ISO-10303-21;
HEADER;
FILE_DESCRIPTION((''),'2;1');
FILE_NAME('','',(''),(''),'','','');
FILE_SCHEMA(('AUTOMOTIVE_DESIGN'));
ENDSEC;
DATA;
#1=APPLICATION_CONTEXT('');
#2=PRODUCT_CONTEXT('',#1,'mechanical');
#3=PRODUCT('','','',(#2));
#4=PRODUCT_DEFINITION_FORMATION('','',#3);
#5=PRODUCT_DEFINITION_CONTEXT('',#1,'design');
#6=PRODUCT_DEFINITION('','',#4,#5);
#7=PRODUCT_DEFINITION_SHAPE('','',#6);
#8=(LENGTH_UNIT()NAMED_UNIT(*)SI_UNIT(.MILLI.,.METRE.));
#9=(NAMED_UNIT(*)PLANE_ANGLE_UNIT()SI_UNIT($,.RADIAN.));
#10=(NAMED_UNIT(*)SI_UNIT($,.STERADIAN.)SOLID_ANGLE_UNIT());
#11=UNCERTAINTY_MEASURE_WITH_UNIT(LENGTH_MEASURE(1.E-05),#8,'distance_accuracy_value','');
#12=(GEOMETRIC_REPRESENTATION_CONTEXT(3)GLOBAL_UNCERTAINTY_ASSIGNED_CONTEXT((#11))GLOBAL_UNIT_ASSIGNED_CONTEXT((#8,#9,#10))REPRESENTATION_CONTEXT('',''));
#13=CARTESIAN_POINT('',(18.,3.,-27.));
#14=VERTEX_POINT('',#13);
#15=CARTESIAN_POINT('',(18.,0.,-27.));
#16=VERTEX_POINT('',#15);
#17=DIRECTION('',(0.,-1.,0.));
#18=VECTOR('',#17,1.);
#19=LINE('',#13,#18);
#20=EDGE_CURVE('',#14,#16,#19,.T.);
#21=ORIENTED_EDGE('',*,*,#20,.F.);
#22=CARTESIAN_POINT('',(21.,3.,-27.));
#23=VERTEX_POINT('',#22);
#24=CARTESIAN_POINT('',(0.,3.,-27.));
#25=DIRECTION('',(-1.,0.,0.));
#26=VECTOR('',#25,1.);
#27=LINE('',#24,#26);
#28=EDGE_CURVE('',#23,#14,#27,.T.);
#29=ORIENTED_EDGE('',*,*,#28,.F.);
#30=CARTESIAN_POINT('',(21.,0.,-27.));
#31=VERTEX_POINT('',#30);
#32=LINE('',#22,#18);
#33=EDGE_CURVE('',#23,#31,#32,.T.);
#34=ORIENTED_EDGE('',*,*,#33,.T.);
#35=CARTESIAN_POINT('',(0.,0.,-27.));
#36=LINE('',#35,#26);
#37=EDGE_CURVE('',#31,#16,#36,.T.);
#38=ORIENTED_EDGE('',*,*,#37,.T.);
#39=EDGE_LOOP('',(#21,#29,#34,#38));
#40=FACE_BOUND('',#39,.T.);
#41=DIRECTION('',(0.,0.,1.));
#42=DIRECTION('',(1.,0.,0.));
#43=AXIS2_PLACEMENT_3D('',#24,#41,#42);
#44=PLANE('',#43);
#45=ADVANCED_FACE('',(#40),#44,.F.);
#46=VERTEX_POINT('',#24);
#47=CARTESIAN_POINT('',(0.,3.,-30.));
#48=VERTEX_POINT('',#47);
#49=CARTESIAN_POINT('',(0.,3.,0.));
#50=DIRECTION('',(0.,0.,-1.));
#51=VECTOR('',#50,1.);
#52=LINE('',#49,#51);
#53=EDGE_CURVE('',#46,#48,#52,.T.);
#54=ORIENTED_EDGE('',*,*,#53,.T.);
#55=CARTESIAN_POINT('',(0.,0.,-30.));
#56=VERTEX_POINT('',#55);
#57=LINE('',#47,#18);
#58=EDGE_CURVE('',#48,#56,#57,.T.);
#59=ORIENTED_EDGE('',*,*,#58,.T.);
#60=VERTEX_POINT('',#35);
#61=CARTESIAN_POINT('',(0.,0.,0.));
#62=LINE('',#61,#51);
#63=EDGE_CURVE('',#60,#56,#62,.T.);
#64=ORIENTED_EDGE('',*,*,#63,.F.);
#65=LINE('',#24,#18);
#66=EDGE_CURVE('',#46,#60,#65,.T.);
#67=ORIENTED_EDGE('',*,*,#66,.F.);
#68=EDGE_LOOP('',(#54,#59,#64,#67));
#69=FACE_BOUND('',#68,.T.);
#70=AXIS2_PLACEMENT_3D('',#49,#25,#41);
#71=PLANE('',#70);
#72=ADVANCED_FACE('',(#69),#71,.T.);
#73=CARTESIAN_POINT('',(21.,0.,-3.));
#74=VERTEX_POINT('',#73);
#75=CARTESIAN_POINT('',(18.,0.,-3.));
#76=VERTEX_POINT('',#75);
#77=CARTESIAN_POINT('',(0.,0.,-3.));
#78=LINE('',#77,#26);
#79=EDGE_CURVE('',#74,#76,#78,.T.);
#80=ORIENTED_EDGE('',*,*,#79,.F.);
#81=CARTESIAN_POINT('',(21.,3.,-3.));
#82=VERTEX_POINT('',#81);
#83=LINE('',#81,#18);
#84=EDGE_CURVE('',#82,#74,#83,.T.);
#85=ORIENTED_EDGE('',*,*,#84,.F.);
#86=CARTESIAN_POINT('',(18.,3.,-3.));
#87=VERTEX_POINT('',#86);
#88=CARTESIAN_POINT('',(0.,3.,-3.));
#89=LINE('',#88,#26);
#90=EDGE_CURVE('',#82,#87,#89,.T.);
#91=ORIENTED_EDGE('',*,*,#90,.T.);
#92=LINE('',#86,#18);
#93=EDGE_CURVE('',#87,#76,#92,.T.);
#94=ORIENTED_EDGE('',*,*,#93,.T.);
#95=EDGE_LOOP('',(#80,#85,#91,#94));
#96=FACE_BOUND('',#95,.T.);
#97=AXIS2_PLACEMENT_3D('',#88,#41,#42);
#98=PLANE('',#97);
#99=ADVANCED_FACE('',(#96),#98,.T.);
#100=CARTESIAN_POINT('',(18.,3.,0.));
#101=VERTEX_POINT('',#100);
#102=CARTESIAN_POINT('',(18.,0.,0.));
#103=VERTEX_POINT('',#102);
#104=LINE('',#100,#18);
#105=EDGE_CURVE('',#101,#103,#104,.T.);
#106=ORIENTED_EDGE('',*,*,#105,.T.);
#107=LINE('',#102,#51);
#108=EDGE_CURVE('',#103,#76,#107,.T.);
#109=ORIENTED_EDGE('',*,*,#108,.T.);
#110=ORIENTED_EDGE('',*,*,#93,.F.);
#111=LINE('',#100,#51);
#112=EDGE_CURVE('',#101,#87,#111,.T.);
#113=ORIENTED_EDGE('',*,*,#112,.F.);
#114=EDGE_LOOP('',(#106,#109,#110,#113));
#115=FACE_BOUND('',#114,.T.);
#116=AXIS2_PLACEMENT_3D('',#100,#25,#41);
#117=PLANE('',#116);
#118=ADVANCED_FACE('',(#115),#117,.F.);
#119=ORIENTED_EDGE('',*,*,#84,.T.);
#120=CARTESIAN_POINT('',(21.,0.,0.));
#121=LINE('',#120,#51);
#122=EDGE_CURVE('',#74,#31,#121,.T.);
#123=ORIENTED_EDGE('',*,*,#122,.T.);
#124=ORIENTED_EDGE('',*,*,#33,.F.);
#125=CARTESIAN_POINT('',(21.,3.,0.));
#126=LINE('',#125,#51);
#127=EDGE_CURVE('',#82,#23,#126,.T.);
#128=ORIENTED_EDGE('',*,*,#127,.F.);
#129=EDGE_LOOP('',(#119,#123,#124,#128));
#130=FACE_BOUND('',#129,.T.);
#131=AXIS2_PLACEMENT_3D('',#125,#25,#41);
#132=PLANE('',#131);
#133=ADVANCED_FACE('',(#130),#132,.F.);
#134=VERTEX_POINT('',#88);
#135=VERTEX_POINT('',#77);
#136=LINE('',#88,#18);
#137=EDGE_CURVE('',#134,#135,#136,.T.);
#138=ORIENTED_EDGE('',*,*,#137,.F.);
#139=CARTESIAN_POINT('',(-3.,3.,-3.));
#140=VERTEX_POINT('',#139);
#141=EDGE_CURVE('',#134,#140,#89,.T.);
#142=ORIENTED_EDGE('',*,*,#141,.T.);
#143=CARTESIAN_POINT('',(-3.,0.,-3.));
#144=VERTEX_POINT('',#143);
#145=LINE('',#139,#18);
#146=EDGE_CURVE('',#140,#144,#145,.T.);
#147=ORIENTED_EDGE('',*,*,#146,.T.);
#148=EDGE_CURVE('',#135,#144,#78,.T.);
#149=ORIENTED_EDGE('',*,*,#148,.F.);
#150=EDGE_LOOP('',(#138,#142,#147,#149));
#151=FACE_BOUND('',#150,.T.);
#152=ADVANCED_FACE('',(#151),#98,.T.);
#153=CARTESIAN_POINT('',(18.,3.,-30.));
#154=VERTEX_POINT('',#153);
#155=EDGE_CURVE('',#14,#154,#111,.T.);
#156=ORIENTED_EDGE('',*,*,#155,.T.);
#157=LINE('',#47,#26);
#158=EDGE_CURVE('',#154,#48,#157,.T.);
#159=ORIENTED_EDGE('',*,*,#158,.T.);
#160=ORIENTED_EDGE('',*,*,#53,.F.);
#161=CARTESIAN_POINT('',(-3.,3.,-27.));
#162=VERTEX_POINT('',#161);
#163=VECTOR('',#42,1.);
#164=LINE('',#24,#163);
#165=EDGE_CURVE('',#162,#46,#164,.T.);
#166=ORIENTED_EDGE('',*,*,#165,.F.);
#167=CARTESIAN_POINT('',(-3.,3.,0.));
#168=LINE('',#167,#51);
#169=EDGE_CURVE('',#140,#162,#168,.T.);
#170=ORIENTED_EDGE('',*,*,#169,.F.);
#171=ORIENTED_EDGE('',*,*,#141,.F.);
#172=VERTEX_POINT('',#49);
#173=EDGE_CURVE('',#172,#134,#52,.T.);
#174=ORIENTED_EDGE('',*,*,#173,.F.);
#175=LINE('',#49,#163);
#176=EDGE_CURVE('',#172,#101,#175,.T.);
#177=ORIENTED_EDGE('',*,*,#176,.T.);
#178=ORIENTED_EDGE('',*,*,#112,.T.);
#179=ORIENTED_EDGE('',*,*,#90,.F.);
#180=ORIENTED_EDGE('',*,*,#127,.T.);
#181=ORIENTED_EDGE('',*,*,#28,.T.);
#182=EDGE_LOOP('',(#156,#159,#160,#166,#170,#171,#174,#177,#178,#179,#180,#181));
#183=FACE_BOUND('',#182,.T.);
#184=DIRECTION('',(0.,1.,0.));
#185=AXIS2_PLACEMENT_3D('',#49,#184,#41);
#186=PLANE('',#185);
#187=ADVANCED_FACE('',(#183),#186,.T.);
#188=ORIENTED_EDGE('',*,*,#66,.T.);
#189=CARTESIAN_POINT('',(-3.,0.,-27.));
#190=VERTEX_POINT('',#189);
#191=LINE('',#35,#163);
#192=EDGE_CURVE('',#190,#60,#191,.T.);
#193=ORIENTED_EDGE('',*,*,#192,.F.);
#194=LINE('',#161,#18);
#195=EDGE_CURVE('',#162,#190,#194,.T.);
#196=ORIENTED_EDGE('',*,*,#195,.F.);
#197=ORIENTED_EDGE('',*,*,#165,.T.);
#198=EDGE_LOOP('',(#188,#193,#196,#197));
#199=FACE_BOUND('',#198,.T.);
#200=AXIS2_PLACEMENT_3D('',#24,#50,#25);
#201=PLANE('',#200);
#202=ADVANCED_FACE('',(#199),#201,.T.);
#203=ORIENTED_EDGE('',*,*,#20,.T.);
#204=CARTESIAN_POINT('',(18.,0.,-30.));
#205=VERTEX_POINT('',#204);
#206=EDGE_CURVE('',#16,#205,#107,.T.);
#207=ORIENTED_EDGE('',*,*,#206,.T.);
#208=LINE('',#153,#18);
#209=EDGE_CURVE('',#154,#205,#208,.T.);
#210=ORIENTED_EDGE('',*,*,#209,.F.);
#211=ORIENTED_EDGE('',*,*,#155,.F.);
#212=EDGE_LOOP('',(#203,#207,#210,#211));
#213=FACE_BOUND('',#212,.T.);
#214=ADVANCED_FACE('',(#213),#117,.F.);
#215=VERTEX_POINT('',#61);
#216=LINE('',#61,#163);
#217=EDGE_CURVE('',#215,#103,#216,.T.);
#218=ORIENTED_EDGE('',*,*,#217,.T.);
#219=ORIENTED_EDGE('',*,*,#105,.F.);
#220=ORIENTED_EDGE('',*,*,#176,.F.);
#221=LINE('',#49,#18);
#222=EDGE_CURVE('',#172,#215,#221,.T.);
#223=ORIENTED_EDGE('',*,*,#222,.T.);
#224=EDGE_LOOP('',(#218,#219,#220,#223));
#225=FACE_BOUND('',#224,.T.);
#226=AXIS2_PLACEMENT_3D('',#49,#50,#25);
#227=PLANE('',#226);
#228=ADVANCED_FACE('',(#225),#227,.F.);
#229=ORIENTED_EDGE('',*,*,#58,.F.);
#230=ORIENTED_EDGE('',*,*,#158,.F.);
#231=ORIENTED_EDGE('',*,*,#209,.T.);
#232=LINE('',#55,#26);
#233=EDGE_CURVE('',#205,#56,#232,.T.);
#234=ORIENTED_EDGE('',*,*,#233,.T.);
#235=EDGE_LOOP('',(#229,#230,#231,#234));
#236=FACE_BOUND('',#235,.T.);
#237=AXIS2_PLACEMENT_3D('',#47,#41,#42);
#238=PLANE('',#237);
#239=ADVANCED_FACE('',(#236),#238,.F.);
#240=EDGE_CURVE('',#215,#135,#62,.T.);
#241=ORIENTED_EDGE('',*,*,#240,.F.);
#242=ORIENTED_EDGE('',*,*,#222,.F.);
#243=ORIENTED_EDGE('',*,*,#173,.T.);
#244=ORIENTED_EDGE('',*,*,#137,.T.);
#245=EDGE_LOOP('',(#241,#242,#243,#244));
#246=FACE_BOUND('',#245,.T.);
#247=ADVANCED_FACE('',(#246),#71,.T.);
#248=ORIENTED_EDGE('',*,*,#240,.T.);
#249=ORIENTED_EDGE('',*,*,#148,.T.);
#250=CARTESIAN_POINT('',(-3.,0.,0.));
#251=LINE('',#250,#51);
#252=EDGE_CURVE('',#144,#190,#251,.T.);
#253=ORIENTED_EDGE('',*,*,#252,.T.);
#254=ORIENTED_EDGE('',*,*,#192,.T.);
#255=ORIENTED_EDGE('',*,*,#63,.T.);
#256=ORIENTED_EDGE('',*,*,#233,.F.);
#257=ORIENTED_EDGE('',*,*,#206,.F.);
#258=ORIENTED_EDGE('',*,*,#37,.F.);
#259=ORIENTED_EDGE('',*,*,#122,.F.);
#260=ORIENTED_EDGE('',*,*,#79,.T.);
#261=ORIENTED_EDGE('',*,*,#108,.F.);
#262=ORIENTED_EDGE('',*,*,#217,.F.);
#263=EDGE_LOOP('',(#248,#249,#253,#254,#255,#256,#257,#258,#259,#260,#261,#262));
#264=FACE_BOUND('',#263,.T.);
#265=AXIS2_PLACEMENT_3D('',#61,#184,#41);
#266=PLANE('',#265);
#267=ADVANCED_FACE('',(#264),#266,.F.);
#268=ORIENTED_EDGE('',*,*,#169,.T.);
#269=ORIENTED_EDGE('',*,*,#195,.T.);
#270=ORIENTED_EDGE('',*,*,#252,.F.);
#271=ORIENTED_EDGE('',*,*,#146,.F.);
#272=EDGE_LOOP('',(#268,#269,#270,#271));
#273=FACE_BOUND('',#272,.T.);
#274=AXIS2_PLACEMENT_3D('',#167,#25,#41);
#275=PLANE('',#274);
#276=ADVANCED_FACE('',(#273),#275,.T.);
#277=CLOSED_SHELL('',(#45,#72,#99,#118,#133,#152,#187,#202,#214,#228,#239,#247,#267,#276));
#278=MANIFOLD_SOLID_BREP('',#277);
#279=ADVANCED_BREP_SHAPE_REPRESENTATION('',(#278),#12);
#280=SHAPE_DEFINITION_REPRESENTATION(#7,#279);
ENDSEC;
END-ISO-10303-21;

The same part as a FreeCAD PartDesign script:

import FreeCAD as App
import Part
import Sketcher
Q = App.Units.Quantity


def add_polygon(sketch, points):
    """Adds a closed chain of lines whose ends are joined by coincident constraints."""
    first, n = sketch.GeometryCount, len(points)
    for a, b in zip(points, points[1:] + points[:1]):
        sketch.addGeometry(Part.LineSegment(App.Vector(*a, 0), App.Vector(*b, 0)), False)
    for i in range(n):
        sketch.addConstraint(Sketcher.Constraint("Coincident", first + i, 2, first + (i + 1) % n, 1))

doc = App.newDocument("Part")
body = doc.addObject("PartDesign::Body", "Body")

sketch1 = body.newObject("Sketcher::SketchObject", "Sketch")
sketch1.AttachmentSupport = (doc.getObject("XZ_Plane"), [""])
sketch1.MapMode = "FlatFace"
add_polygon(sketch1, [(0, 0), (18, 0), (18, -3), (21, -3), (21, -27), (18, -27), (18, -30), (0, -30), (0, -27), (-3, -27), (-3, -3), (0, -3)])
sketch1.addConstraint(Sketcher.Constraint("Horizontal", 0))
sketch1.addConstraint(Sketcher.Constraint("Vertical", 1))
sketch1.addConstraint(Sketcher.Constraint("Horizontal", 2))
sketch1.addConstraint(Sketcher.Constraint("Vertical", 3))
sketch1.addConstraint(Sketcher.Constraint("Horizontal", 4))
sketch1.addConstraint(Sketcher.Constraint("Vertical", 5))
sketch1.addConstraint(Sketcher.Constraint("Horizontal", 6))
sketch1.addConstraint(Sketcher.Constraint("Vertical", 7))
sketch1.addConstraint(Sketcher.Constraint("Horizontal", 8))
sketch1.addConstraint(Sketcher.Constraint("Vertical", 9))
sketch1.addConstraint(Sketcher.Constraint("Horizontal", 10))
sketch1.addConstraint(Sketcher.Constraint("Vertical", 11))
sketch1.addConstraint(Sketcher.Constraint("Coincident", 11, 2, -1, 1))
sketch1.addConstraint(Sketcher.Constraint("PointOnObject", 6, 2, -2))
sketch1.addConstraint(Sketcher.Constraint("Horizontal", 4, 2, 7, 2))
sketch1.addConstraint(Sketcher.Constraint("Horizontal", 2, 2, 9, 2))
sketch1.addConstraint(Sketcher.Constraint("Vertical", 1, 2, 4, 2))
sketch1.addConstraint(Sketcher.Constraint("Equal", 4, 8))
sketch1.addConstraint(Sketcher.Constraint("Equal", 10, 1))
sketch1.addConstraint(Sketcher.Constraint("Equal", 1, 5))
sketch1.addConstraint(Sketcher.Constraint("DistanceX", 0, 1, 0, 2, Q("18 mm")))
sketch1.addConstraint(Sketcher.Constraint("DistanceX", 2, 1, 2, 2, Q("3 mm")))
sketch1.addConstraint(Sketcher.Constraint("DistanceY", 3, 2, 3, 1, Q("24 mm")))
pad1 = body.newObject("PartDesign::Pad", "Pad")
pad1.Profile = sketch1
pad1.Length = 3
pad1.Reversed = True

doc.recompute()
